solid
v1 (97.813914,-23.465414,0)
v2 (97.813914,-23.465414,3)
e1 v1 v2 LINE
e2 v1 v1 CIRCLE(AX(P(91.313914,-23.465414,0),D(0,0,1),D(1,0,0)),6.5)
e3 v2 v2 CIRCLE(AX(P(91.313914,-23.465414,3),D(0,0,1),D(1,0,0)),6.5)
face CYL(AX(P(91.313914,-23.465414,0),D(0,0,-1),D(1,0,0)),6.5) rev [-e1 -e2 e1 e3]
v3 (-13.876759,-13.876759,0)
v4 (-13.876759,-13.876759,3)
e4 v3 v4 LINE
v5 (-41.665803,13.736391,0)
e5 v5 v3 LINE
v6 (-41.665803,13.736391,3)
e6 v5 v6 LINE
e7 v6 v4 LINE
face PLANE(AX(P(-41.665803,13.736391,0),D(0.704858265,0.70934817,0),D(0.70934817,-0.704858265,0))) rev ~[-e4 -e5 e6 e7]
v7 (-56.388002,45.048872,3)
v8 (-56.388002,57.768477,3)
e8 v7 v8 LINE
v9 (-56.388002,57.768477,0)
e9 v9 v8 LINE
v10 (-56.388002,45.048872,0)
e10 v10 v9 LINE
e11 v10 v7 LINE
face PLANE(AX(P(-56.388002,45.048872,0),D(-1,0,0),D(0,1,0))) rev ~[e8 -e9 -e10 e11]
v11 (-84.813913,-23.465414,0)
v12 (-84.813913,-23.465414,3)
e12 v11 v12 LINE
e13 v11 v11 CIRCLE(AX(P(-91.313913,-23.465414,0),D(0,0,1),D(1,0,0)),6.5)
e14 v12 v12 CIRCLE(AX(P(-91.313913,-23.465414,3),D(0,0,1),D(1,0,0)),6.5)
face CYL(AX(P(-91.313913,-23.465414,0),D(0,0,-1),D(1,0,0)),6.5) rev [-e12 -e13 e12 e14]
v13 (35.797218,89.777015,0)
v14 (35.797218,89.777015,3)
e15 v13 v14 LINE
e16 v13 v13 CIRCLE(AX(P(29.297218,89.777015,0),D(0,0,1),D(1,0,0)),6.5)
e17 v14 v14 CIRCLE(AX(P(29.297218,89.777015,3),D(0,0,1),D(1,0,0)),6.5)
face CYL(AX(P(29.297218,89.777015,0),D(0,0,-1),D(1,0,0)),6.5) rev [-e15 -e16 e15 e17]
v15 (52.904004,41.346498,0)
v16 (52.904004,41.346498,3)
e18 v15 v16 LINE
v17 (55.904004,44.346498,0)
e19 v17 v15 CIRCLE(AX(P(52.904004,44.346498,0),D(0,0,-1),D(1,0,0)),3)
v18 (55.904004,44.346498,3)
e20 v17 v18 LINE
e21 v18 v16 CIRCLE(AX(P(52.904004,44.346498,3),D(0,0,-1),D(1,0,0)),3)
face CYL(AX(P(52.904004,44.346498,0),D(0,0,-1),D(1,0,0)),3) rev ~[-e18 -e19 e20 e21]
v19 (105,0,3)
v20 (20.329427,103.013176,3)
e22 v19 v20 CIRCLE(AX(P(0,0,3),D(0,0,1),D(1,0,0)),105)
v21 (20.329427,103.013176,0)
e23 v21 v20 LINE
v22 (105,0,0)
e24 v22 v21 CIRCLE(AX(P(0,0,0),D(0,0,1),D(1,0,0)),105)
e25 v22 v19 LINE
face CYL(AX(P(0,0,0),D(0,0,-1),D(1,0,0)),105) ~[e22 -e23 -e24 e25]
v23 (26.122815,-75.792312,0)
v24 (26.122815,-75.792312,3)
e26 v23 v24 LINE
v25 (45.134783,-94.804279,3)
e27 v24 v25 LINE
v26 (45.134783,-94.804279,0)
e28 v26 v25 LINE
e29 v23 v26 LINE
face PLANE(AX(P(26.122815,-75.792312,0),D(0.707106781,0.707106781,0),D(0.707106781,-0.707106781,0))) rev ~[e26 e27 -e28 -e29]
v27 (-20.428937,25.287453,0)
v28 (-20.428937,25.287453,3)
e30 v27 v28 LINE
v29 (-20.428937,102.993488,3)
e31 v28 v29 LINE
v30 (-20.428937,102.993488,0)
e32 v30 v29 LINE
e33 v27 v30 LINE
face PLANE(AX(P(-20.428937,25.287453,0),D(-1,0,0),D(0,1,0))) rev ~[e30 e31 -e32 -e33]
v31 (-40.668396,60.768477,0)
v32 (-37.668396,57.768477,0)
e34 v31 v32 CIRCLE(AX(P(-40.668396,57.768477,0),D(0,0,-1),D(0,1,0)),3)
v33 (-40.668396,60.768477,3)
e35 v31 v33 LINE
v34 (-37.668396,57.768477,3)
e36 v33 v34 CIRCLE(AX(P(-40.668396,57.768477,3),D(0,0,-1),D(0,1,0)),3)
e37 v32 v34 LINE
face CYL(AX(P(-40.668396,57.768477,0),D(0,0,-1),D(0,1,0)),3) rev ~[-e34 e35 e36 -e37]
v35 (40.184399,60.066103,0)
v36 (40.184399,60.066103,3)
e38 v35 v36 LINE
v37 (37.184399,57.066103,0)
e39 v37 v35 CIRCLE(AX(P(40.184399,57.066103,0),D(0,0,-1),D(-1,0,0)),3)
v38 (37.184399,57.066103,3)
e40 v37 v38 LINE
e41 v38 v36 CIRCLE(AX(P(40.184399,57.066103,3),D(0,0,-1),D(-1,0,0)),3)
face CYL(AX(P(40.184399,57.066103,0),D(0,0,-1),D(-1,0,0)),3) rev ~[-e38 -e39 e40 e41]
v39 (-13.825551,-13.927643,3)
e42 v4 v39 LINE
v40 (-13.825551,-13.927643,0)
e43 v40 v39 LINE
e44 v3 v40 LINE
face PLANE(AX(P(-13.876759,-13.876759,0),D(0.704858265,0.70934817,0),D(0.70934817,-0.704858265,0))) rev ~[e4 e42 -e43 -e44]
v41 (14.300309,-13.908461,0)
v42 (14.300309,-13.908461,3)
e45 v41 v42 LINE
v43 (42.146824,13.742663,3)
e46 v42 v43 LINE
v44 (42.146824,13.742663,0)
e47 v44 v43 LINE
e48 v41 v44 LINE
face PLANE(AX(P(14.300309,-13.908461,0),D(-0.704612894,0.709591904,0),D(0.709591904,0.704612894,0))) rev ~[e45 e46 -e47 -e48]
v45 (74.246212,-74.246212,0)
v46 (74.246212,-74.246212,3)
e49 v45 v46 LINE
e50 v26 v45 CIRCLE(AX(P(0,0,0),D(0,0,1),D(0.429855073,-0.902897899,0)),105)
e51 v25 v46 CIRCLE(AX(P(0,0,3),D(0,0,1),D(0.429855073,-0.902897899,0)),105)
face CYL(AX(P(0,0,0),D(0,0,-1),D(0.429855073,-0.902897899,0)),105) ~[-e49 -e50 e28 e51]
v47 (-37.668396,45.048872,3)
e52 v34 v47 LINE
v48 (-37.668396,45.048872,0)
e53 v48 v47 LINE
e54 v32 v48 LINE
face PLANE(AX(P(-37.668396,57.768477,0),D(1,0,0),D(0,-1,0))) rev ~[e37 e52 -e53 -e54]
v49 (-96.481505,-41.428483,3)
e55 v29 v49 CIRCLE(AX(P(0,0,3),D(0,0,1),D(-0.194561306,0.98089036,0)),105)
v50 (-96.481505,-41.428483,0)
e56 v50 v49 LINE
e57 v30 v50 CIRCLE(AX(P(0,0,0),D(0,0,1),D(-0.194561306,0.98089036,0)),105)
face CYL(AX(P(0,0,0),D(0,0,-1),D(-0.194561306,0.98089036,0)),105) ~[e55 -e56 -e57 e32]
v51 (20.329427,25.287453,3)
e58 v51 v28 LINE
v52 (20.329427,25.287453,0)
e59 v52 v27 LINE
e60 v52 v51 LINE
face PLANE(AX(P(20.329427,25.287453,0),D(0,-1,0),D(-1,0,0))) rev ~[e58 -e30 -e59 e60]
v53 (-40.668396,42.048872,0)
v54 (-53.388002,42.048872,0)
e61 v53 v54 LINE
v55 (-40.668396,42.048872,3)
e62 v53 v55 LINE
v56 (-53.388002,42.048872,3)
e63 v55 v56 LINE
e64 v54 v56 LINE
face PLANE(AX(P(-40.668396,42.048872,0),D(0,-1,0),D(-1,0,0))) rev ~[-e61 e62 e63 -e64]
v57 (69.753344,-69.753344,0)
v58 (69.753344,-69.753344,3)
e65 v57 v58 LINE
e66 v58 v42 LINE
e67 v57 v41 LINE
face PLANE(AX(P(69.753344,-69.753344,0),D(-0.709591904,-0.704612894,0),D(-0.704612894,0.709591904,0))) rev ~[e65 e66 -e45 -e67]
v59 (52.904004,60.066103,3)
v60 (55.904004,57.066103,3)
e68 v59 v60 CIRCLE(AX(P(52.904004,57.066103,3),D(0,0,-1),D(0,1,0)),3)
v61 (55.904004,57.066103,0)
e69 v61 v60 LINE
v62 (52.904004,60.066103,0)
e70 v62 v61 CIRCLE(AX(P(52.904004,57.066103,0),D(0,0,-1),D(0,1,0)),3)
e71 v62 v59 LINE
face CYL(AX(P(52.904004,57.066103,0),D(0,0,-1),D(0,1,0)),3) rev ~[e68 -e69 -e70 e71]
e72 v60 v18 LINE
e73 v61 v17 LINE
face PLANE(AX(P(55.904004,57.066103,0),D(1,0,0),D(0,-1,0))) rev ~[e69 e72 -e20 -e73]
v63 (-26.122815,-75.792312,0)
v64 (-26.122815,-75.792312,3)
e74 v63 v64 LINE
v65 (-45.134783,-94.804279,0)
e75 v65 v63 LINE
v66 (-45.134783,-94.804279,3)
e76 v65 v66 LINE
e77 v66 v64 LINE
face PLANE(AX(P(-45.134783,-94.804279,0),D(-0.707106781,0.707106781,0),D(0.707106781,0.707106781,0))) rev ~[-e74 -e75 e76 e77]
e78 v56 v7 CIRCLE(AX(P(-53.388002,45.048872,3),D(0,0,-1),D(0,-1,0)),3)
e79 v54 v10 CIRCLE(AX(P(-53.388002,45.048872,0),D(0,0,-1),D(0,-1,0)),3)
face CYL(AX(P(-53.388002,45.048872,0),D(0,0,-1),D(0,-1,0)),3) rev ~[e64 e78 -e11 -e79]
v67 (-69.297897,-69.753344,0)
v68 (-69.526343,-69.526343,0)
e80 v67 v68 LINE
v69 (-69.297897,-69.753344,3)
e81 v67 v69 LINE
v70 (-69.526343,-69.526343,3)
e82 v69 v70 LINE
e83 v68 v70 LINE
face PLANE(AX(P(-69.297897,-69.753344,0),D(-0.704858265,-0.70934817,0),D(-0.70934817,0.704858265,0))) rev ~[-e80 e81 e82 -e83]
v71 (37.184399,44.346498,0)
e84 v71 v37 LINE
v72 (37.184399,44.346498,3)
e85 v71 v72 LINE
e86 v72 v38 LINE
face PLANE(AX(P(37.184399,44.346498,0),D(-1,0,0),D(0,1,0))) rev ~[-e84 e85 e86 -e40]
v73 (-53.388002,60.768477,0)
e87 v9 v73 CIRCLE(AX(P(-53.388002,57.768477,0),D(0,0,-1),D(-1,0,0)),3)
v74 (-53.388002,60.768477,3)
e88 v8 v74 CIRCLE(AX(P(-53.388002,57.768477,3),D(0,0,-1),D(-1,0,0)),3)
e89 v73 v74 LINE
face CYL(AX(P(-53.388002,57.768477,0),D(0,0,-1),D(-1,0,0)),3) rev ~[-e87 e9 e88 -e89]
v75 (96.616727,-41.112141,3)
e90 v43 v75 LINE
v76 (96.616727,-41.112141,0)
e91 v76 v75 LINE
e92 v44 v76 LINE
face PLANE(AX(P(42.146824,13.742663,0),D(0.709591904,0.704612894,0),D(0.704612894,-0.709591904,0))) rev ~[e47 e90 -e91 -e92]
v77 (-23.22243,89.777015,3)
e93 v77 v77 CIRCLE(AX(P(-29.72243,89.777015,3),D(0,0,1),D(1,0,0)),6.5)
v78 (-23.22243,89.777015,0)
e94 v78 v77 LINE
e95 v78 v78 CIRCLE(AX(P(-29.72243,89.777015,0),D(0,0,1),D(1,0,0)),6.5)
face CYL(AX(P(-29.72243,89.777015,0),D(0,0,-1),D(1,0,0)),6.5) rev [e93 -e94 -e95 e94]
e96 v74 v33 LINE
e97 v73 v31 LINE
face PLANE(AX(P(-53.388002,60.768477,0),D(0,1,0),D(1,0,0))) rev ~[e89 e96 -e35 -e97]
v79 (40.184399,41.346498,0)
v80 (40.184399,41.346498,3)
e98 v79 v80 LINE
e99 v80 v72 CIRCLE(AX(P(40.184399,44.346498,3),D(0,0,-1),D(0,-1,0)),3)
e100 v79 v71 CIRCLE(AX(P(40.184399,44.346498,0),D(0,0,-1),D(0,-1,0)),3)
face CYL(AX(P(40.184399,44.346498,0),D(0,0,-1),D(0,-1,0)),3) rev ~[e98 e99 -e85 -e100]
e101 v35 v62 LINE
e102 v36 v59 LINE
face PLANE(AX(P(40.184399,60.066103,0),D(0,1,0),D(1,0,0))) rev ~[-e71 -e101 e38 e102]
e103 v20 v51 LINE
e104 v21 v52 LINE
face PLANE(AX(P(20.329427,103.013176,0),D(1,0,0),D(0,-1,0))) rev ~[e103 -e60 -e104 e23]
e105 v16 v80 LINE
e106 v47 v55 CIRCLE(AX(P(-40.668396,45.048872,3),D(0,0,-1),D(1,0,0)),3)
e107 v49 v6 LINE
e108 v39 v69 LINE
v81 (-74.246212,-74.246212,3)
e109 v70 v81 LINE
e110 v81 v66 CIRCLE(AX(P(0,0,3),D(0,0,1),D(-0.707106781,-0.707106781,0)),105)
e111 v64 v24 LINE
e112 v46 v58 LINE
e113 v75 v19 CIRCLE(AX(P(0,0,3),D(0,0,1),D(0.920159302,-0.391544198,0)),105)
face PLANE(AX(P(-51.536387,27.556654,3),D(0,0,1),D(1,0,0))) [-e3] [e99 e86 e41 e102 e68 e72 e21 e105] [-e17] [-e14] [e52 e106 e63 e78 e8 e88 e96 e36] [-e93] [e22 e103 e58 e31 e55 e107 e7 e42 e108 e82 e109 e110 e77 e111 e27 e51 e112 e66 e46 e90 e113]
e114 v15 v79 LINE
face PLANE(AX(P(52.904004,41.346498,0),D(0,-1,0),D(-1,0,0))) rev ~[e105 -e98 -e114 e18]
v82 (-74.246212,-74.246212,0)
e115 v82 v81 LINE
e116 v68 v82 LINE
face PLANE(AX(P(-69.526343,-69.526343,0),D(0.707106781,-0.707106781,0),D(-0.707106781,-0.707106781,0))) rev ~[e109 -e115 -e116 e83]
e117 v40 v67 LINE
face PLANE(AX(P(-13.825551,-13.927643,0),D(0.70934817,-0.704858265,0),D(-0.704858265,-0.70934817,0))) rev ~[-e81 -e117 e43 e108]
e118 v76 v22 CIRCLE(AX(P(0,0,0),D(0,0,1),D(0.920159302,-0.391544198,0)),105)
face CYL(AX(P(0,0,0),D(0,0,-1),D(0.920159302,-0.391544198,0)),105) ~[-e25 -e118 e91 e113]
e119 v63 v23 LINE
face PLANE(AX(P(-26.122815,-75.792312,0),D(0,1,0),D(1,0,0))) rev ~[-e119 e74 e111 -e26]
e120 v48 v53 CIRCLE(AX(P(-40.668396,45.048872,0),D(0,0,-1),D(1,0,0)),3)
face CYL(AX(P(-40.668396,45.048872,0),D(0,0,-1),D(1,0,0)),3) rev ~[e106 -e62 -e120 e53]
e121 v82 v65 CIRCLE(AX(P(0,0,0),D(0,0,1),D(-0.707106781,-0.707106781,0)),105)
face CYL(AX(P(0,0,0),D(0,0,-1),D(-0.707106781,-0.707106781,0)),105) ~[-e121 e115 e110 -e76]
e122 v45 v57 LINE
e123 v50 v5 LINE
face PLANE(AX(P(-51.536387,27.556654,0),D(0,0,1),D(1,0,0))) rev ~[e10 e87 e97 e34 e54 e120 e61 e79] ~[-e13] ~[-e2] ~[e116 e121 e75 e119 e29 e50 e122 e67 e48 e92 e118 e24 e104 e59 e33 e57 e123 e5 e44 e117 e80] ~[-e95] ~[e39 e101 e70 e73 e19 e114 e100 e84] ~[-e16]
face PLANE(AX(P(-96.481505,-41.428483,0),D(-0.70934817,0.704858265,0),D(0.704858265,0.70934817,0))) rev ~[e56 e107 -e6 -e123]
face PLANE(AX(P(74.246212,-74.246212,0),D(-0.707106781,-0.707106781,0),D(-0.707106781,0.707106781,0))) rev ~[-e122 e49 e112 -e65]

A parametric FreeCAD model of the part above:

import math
import FreeCAD as App
import Part
import Sketcher

doc = App.newDocument("Part")
body = doc.addObject("PartDesign::Body", "Body")

# Sketch on XY plane
sketch1 = body.newObject("Sketcher::SketchObject", "Sketch")
sketch1.AttachmentSupport = (doc.getObject("XY_Plane"), [""])
sketch1.MapMode = "FlatFace"
sketch1.addGeometry([
    Part.ArcOfCircle(Part.Circle(App.Vector(0, 0, 0), App.Vector(0, 0, 1), 105), math.radians(101.219097), math.radians(203.238347)),  # 0
    Part.LineSegment(App.Vector(-96.481505, -41.428483, 0), App.Vector(-41.665803, 13.736391, 0)),  # 1
    Part.LineSegment(App.Vector(-41.665803, 13.736391, 0), App.Vector(-13.876759, -13.876759, 0)),  # 2
    Part.LineSegment(App.Vector(-13.876759, -13.876759, 0), App.Vector(-13.825551, -13.927643, 0)),  # 3
    Part.LineSegment(App.Vector(-13.825551, -13.927643, 0), App.Vector(-69.297897, -69.753344, 0)),  # 4
    Part.LineSegment(App.Vector(-69.297897, -69.753344, 0), App.Vector(-69.526343, -69.526343, 0)),  # 5
    Part.LineSegment(App.Vector(-69.526343, -69.526343, 0), App.Vector(-74.246212, -74.246212, 0)),  # 6
    Part.ArcOfCircle(Part.Circle(App.Vector(0, 0, 0), App.Vector(0, 0, 1), 105), math.radians(-135), math.radians(-115.458363)),  # 7
    Part.LineSegment(App.Vector(-45.134783, -94.804279, 0), App.Vector(-26.122815, -75.792312, 0)),  # 8
    Part.LineSegment(App.Vector(-26.122815, -75.792312, 0), App.Vector(26.122815, -75.792312, 0)),  # 9
    Part.LineSegment(App.Vector(26.122815, -75.792312, 0), App.Vector(45.134783, -94.804279, 0)),  # 10
    Part.ArcOfCircle(Part.Circle(App.Vector(0, 0, 0), App.Vector(0, 0, 1), 105), math.radians(-64.541637), math.radians(-45)),  # 11
    Part.LineSegment(App.Vector(74.246212, -74.246212, 0), App.Vector(69.753344, -69.753344, 0)),  # 12
    Part.LineSegment(App.Vector(69.753344, -69.753344, 0), App.Vector(14.300309, -13.908461, 0)),  # 13
    Part.LineSegment(App.Vector(14.300309, -13.908461, 0), App.Vector(42.146824, 13.742663, 0)),  # 14
    Part.LineSegment(App.Vector(42.146824, 13.742663, 0), App.Vector(96.616727, -41.112141, 0)),  # 15
    Part.ArcOfCircle(Part.Circle(App.Vector(0, 0, 0), App.Vector(0, 0, 1), 105), math.radians(-23.050618), math.radians(0)),  # 16
    Part.ArcOfCircle(Part.Circle(App.Vector(0, 0, 0), App.Vector(0, 0, 1), 105), math.radians(0), math.radians(78.836255)),  # 17
    Part.LineSegment(App.Vector(20.329427, 103.013176, 0), App.Vector(20.329427, 25.287453, 0)),  # 18
    Part.LineSegment(App.Vector(20.329427, 25.287453, 0), App.Vector(-20.428937, 25.287453, 0)),  # 19
    Part.LineSegment(App.Vector(-20.428937, 25.287453, 0), App.Vector(-20.428937, 102.993488, 0)),  # 20
    Part.Circle(App.Vector(-91.313913, -23.465414, 0), App.Vector(0, 0, 1), 6.5),  # 21
    Part.Circle(App.Vector(91.313914, -23.465414, 0), App.Vector(0, 0, 1), 6.5),  # 22
    Part.LineSegment(App.Vector(-56.388002, 45.048872, 0), App.Vector(-56.388002, 57.768477, 0)),  # 23
    Part.ArcOfCircle(Part.Circle(App.Vector(-53.388002, 57.768477, 0), App.Vector(0, 0, 1), 3), math.radians(90), math.radians(180)),  # 24
    Part.LineSegment(App.Vector(-53.388002, 60.768477, 0), App.Vector(-40.668396, 60.768477, 0)),  # 25
    Part.ArcOfCircle(Part.Circle(App.Vector(-40.668396, 57.768477, 0), App.Vector(0, 0, 1), 3), math.radians(0), math.radians(90)),  # 26
    Part.LineSegment(App.Vector(-37.668396, 57.768477, 0), App.Vector(-37.668396, 45.048872, 0)),  # 27
    Part.ArcOfCircle(Part.Circle(App.Vector(-40.668396, 45.048872, 0), App.Vector(0, 0, 1), 3), math.radians(-90), math.radians(0)),  # 28
    Part.LineSegment(App.Vector(-40.668396, 42.048872, 0), App.Vector(-53.388002, 42.048872, 0)),  # 29
    Part.ArcOfCircle(Part.Circle(App.Vector(-53.388002, 45.048872, 0), App.Vector(0, 0, 1), 3), math.radians(180), math.radians(270)),  # 30
    Part.Circle(App.Vector(-29.72243, 89.777015, 0), App.Vector(0, 0, 1), 6.5),  # 31
    Part.LineSegment(App.Vector(37.184399, 44.346498, 0), App.Vector(37.184399, 57.066103, 0)),  # 32
    Part.ArcOfCircle(Part.Circle(App.Vector(40.184399, 57.066103, 0), App.Vector(0, 0, 1), 3), math.radians(90), math.radians(180)),  # 33
    Part.LineSegment(App.Vector(40.184399, 60.066103, 0), App.Vector(52.904004, 60.066103, 0)),  # 34
    Part.ArcOfCircle(Part.Circle(App.Vector(52.904004, 57.066103, 0), App.Vector(0, 0, 1), 3), math.radians(0), math.radians(90)),  # 35
    Part.LineSegment(App.Vector(55.904004, 57.066103, 0), App.Vector(55.904004, 44.346498, 0)),  # 36
    Part.ArcOfCircle(Part.Circle(App.Vector(52.904004, 44.346498, 0), App.Vector(0, 0, 1), 3), math.radians(-90), math.radians(0)),  # 37
    Part.LineSegment(App.Vector(52.904004, 41.346498, 0), App.Vector(40.184399, 41.346498, 0)),  # 38
    Part.ArcOfCircle(Part.Circle(App.Vector(40.184399, 44.346498, 0), App.Vector(0, 0, 1), 3), math.radians(180), math.radians(270)),  # 39
    Part.Circle(App.Vector(29.297218, 89.777015, 0), App.Vector(0, 0, 1), 6.5),  # 40
], False)
sketch1.addConstraint([
    Sketcher.Constraint("Coincident", 0, 2, 1, 1),
    Sketcher.Constraint("Coincident", 1, 2, 2, 1),
    Sketcher.Constraint("Coincident", 2, 2, 3, 1),
    Sketcher.Constraint("Coincident", 3, 2, 4, 1),
    Sketcher.Constraint("Coincident", 4, 2, 5, 1),
    Sketcher.Constraint("Coincident", 5, 2, 6, 1),
    Sketcher.Constraint("Coincident", 6, 2, 7, 1),
    Sketcher.Constraint("Coincident", 7, 2, 8, 1),
    Sketcher.Constraint("Coincident", 8, 2, 9, 1),
    Sketcher.Constraint("Coincident", 9, 2, 10, 1),
    Sketcher.Constraint("Coincident", 10, 2, 11, 1),
    Sketcher.Constraint("Coincident", 11, 2, 12, 1),
    Sketcher.Constraint("Coincident", 12, 2, 13, 1),
    Sketcher.Constraint("Coincident", 13, 2, 14, 1),
    Sketcher.Constraint("Coincident", 14, 2, 15, 1),
    Sketcher.Constraint("Coincident", 15, 2, 16, 1),
    Sketcher.Constraint("Tangent", 16, 2, 17, 1),
    Sketcher.Constraint("Coincident", 17, 2, 18, 1),
    Sketcher.Constraint("Coincident", 18, 2, 19, 1),
    Sketcher.Constraint("Coincident", 19, 2, 20, 1),
    Sketcher.Constraint("Coincident", 20, 2, 0, 1),
    Sketcher.Constraint("Tangent", 23, 2, 24, 2),
    Sketcher.Constraint("Tangent", 24, 1, 25, 1),
    Sketcher.Constraint("Tangent", 25, 2, 26, 2),
    Sketcher.Constraint("Tangent", 26, 1, 27, 1),
    Sketcher.Constraint("Tangent", 27, 2, 28, 2),
    Sketcher.Constraint("Tangent", 28, 1, 29, 1),
    Sketcher.Constraint("Tangent", 29, 2, 30, 2),
    Sketcher.Constraint("Tangent", 30, 1, 23, 1),
    Sketcher.Constraint("Tangent", 32, 2, 33, 2),
    Sketcher.Constraint("Tangent", 33, 1, 34, 1),
    Sketcher.Constraint("Tangent", 34, 2, 35, 2),
    Sketcher.Constraint("Tangent", 35, 1, 36, 1),
    Sketcher.Constraint("Tangent", 36, 2, 37, 2),
    Sketcher.Constraint("Tangent", 37, 1, 38, 1),
    Sketcher.Constraint("Tangent", 38, 2, 39, 2),
    Sketcher.Constraint("Tangent", 39, 1, 32, 1),
    Sketcher.Constraint("Horizontal", 9),
    Sketcher.Constraint("Vertical", 18),
    Sketcher.Constraint("Horizontal", 19),
    Sketcher.Constraint("Vertical", 20),
    Sketcher.Constraint("Vertical", 23),
    Sketcher.Constraint("Horizontal", 25),
    Sketcher.Constraint("Vertical", 27),
    Sketcher.Constraint("Horizontal", 29),
    Sketcher.Constraint("Vertical", 32),
    Sketcher.Constraint("Horizontal", 34),
    Sketcher.Constraint("Vertical", 36),
    Sketcher.Constraint("Horizontal", 38),
    Sketcher.Constraint("Coincident", 0, 3, -1, 1),
    Sketcher.Constraint("Coincident", 7, 3, -1, 1),
    Sketcher.Constraint("Coincident", 11, 3, -1, 1),
    Sketcher.Constraint("Coincident", 16, 3, -1, 1),
    Sketcher.Constraint("Equal", 0, 7),
    Sketcher.Constraint("Equal", 7, 11),
    Sketcher.Constraint("Equal", 11, 16),
    Sketcher.Constraint("Equal", 16, 17),
    Sketcher.Constraint("Equal", 21, 22),
    Sketcher.Constraint("Equal", 24, 26),
    Sketcher.Constraint("Equal", 26, 28),
    Sketcher.Constraint("Equal", 28, 30),
    Sketcher.Constraint("Equal", 22, 31),
    Sketcher.Constraint("Equal", 30, 33),
    Sketcher.Constraint("Equal", 33, 35),
    Sketcher.Constraint("Equal", 35, 37),
    Sketcher.Constraint("Equal", 37, 39),
    Sketcher.Constraint("Equal", 31, 40),
    Sketcher.Constraint("Symmetric", 21, 3, 22, 3, -2),
    Sketcher.Constraint("PointOnObject", 16, 2, -1),
    Sketcher.Constraint("Perpendicular", 1, 2),
    Sketcher.Constraint("Parallel", 2, 3),
    Sketcher.Constraint("Perpendicular", 2, 4),
    Sketcher.Constraint("Perpendicular", 4, 5),
    Sketcher.Constraint("Parallel", 6, 8),
    Sketcher.Constraint("Perpendicular", 8, 10),
    Sketcher.Constraint("Parallel", 10, 12),
    Sketcher.Constraint("Perpendicular", 13, 14),
    Sketcher.Constraint("Perpendicular", 14, 15),
    Sketcher.Constraint("Horizontal", 31, 3, 40, 3),
    Sketcher.Constraint("Horizontal", 7, 2, 10, 2),
    Sketcher.Constraint("Horizontal", 6, 2, 11, 2),
    Sketcher.Constraint("Horizontal", 4, 2, 12, 2),
    Sketcher.Constraint("Equal", 29, 34),
    Sketcher.Constraint("Equal", 38, 23),
    Sketcher.Constraint("Equal", 27, 32),
    Sketcher.Constraint("Equal", 8, 10),
    Sketcher.Constraint("Equal", 4, 13),
    Sketcher.Constraint("Diameter", 21, 13.0),
    Sketcher.Constraint("Radius", 0, 105.0),
    Sketcher.Constraint("Radius", 24, 3.0),
    Sketcher.Constraint("Distance", 4, 78.7),
    Sketcher.Constraint("Distance", 14, 39.243),
    Sketcher.Constraint("DistanceX", 24, 3, -1, 1, 53.388002),
    Sketcher.Constraint("DistanceY", 4, 2, 5, 2, 0.227),
    Sketcher.Constraint("DistanceX", 9, 1, 9, 2, 52.24563),
    Sketcher.Constraint("DistanceX", -1, 1, 33, 3, 40.184399),
    Sketcher.Constraint("DistanceX", 30, 3, 1, 2, 11.722199),
    Sketcher.Constraint("DistanceY", 4, 2, 3, 2, 55.825701),
    Sketcher.Constraint("DistanceX", 21, 3, 6, 2, 17.067701),
    Sketcher.Constraint("DistanceY", 6, 2, 21, 3, 50.780798),
    Sketcher.Constraint("DistanceY", 8, 2, 6, 2, 1.5461),
    Sketcher.Constraint("Distance", 3, 0.07219),
    Sketcher.Constraint("Distance", 15, 77.304721),
    Sketcher.Constraint("DistanceX", 19, 2, 19, 1, 40.758364),
    Sketcher.Constraint("DistanceX", 25, 1, 25, 2, 12.719605),
    Sketcher.Constraint("DistanceY", 18, 2, 18, 1, 77.725723),
    Sketcher.Constraint("DistanceY", 20, 1, 20, 2, 77.706035),
    Sketcher.Constraint("DistanceY", -1, 1, 28, 3, 45.048872),
    Sketcher.Constraint("DistanceX", 31, 3, -1, 1, 29.72243),
    Sketcher.Constraint("DistanceY", -1, 1, 1, 2, 13.736391),
    Sketcher.Constraint("DistanceX", 2, 2, -1, 1, 13.876759),
    Sketcher.Constraint("DistanceY", 26, 3, 31, 3, 32.008538),
    Sketcher.Constraint("DistanceX", 40, 3, 33, 3, 10.887181),
    Sketcher.Constraint("DistanceY", 33, 3, 40, 3, 32.710912),
])
pad1 = body.newObject("PartDesign::Pad", "Pad")
pad1.Profile = sketch1
pad1.Length = 3

doc.recompute()
